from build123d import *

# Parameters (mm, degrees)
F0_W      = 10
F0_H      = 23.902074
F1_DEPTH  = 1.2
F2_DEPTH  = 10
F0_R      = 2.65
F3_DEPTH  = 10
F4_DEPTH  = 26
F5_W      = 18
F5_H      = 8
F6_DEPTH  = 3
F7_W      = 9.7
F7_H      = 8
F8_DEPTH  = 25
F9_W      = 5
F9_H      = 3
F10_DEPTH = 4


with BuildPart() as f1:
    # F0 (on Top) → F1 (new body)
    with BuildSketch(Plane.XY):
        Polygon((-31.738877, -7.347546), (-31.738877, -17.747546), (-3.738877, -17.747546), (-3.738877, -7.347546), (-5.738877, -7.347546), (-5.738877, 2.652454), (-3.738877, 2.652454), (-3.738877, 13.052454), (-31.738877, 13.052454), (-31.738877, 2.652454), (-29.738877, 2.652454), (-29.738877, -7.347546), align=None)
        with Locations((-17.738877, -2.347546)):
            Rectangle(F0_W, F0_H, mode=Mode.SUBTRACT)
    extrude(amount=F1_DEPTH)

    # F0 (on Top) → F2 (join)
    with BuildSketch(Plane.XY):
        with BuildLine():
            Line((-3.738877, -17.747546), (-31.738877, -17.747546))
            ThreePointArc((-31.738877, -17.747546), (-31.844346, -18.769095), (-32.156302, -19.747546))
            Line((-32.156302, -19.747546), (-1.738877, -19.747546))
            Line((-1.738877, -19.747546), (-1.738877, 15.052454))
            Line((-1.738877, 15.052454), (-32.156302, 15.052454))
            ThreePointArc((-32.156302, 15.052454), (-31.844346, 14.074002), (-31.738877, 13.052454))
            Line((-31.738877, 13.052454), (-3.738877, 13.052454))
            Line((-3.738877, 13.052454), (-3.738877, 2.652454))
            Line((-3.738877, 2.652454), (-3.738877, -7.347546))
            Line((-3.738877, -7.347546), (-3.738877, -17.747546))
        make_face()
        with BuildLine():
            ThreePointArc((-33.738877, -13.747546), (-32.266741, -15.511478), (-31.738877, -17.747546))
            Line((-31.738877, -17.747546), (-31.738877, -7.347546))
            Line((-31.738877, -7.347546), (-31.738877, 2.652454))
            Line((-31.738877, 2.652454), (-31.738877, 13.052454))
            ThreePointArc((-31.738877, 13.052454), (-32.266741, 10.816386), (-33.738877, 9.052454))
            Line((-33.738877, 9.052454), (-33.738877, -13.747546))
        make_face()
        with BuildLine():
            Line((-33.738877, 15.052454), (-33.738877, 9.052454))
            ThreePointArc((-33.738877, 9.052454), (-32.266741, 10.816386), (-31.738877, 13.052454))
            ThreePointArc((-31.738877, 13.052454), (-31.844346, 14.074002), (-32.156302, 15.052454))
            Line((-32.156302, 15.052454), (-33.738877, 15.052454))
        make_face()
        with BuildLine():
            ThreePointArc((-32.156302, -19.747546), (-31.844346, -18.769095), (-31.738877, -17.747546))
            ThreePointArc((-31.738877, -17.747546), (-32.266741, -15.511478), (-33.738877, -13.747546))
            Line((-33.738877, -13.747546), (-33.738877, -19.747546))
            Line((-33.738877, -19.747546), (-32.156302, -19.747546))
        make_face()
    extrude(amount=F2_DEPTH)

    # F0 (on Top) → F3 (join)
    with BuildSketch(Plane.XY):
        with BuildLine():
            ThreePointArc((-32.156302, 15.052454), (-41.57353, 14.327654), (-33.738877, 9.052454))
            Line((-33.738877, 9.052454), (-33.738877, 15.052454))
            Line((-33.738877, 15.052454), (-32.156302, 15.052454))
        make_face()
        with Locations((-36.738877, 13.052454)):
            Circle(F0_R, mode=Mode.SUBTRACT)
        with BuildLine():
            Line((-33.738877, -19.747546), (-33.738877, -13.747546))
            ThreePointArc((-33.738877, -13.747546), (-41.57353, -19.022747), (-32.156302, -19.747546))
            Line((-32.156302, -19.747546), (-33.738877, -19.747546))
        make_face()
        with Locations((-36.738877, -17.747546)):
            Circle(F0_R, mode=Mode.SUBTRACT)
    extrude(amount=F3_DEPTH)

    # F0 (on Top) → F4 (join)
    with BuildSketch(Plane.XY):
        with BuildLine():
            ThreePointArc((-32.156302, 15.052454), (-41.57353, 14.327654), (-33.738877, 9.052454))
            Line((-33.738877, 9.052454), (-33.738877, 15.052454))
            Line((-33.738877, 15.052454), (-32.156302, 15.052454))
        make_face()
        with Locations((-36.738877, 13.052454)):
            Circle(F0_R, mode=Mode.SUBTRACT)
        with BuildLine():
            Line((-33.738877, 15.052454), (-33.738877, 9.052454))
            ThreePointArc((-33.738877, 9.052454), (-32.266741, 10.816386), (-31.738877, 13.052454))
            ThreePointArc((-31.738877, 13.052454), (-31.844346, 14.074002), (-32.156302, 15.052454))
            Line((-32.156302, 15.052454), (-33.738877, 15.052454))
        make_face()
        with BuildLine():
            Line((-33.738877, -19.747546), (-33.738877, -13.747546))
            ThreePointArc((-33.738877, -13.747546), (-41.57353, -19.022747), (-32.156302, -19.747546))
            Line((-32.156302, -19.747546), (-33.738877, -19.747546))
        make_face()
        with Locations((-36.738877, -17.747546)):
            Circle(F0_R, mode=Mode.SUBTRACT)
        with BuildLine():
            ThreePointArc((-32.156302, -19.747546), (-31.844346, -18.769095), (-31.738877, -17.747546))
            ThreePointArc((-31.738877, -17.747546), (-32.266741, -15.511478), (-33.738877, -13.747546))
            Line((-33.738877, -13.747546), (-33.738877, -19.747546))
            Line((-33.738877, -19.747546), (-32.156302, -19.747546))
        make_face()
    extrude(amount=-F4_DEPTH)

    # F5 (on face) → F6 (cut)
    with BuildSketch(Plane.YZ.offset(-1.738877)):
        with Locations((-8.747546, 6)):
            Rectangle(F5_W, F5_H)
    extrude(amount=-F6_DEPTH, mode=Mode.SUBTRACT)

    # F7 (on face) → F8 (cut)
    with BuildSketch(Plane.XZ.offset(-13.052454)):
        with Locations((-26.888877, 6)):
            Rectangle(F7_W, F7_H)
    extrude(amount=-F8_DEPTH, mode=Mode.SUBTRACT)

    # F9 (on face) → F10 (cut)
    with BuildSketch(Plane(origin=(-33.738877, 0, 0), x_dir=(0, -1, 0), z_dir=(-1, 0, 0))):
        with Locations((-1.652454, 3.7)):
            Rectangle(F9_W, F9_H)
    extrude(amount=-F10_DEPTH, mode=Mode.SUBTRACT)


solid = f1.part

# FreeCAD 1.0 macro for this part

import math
import FreeCAD as App
import Part
import Sketcher

doc = App.newDocument("Part")
body = doc.addObject("PartDesign::Body", "Body")

sketch1 = body.newObject("Sketcher::SketchObject", "Sketch")
sketch1.AttachmentSupport = (doc.getObject("XY_Plane"), [""])
sketch1.MapMode = "FlatFace"
sketch1.addGeometry(Part.LineSegment(App.Vector(-31.738877, -7.347546, 0), App.Vector(-31.738877, -17.747546, 0)), False)
sketch1.addGeometry(Part.LineSegment(App.Vector(-31.738877, -17.747546, 0), App.Vector(-3.738877, -17.747546, 0)), False)
sketch1.addGeometry(Part.LineSegment(App.Vector(-3.738877, -17.747546, 0), App.Vector(-3.738877, -7.347546, 0)), False)
sketch1.addGeometry(Part.LineSegment(App.Vector(-3.738877, -7.347546, 0), App.Vector(-5.738877, -7.347546, 0)), False)
sketch1.addGeometry(Part.LineSegment(App.Vector(-5.738877, -7.347546, 0), App.Vector(-5.738877, 2.652454, 0)), False)
sketch1.addGeometry(Part.LineSegment(App.Vector(-5.738877, 2.652454, 0), App.Vector(-3.738877, 2.652454, 0)), False)
sketch1.addGeometry(Part.LineSegment(App.Vector(-3.738877, 2.652454, 0), App.Vector(-3.738877, 13.052454, 0)), False)
sketch1.addGeometry(Part.LineSegment(App.Vector(-3.738877, 13.052454, 0), App.Vector(-31.738877, 13.052454, 0)), False)
sketch1.addGeometry(Part.LineSegment(App.Vector(-31.738877, 13.052454, 0), App.Vector(-31.738877, 2.652454, 0)), False)
sketch1.addGeometry(Part.LineSegment(App.Vector(-31.738877, 2.652454, 0), App.Vector(-29.738877, 2.652454, 0)), False)
sketch1.addGeometry(Part.LineSegment(App.Vector(-29.738877, 2.652454, 0), App.Vector(-29.738877, -7.347546, 0)), False)
sketch1.addGeometry(Part.LineSegment(App.Vector(-29.738877, -7.347546, 0), App.Vector(-31.738877, -7.347546, 0)), False)
sketch1.addGeometry(Part.LineSegment(App.Vector(-12.738877, -14.298583, 0), App.Vector(-22.738877, -14.298583, 0)), False)
sketch1.addGeometry(Part.LineSegment(App.Vector(-22.738877, -14.298583, 0), App.Vector(-22.738877, 9.603491, 0)), False)
sketch1.addGeometry(Part.LineSegment(App.Vector(-22.738877, 9.603491, 0), App.Vector(-12.738877, 9.603491, 0)), False)
sketch1.addGeometry(Part.LineSegment(App.Vector(-12.738877, 9.603491, 0), App.Vector(-12.738877, -14.298583, 0)), False)
sketch1.addConstraint(Sketcher.Constraint("Coincident", 0, 2, 1, 1))
sketch1.addConstraint(Sketcher.Constraint("Coincident", 1, 2, 2, 1))
sketch1.addConstraint(Sketcher.Constraint("Coincident", 2, 2, 3, 1))
sketch1.addConstraint(Sketcher.Constraint("Coincident", 3, 2, 4, 1))
sketch1.addConstraint(Sketcher.Constraint("Coincident", 4, 2, 5, 1))
sketch1.addConstraint(Sketcher.Constraint("Coincident", 5, 2, 6, 1))
sketch1.addConstraint(Sketcher.Constraint("Coincident", 6, 2, 7, 1))
sketch1.addConstraint(Sketcher.Constraint("Coincident", 7, 2, 8, 1))
sketch1.addConstraint(Sketcher.Constraint("Coincident", 8, 2, 9, 1))
sketch1.addConstraint(Sketcher.Constraint("Coincident", 9, 2, 10, 1))
sketch1.addConstraint(Sketcher.Constraint("Coincident", 10, 2, 11, 1))
sketch1.addConstraint(Sketcher.Constraint("Coincident", 11, 2, 0, 1))
sketch1.addConstraint(Sketcher.Constraint("Coincident", 12, 2, 13, 1))
sketch1.addConstraint(Sketcher.Constraint("Coincident", 13, 2, 14, 1))
sketch1.addConstraint(Sketcher.Constraint("Coincident", 14, 2, 15, 1))
sketch1.addConstraint(Sketcher.Constraint("Coincident", 15, 2, 12, 1))
sketch1.addConstraint(Sketcher.Constraint("Vertical", 0))
sketch1.addConstraint(Sketcher.Constraint("Horizontal", 1))
sketch1.addConstraint(Sketcher.Constraint("Vertical", 2))
sketch1.addConstraint(Sketcher.Constraint("Horizontal", 3))
sketch1.addConstraint(Sketcher.Constraint("Vertical", 4))
sketch1.addConstraint(Sketcher.Constraint("Horizontal", 5))
sketch1.addConstraint(Sketcher.Constraint("Vertical", 6))
sketch1.addConstraint(Sketcher.Constraint("Horizontal", 7))
sketch1.addConstraint(Sketcher.Constraint("Vertical", 8))
sketch1.addConstraint(Sketcher.Constraint("Horizontal", 9))
sketch1.addConstraint(Sketcher.Constraint("Vertical", 10))
sketch1.addConstraint(Sketcher.Constraint("Horizontal", 11))
sketch1.addConstraint(Sketcher.Constraint("Horizontal", 12))
sketch1.addConstraint(Sketcher.Constraint("Vertical", 13))
sketch1.addConstraint(Sketcher.Constraint("Horizontal", 14))
sketch1.addConstraint(Sketcher.Constraint("Vertical", 15))
sketch1.addConstraint(Sketcher.Constraint("Horizontal", 5, 2, 8, 2))
sketch1.addConstraint(Sketcher.Constraint("Horizontal", 3, 2, 10, 2))
sketch1.addConstraint(Sketcher.Constraint("Vertical", 2, 2, 5, 2))
sketch1.addConstraint(Sketcher.Constraint("Vertical", 0, 2, 7, 2))
sketch1.addConstraint(Sketcher.Constraint("Equal", 5, 9))
sketch1.addConstraint(Sketcher.Constraint("Equal", 14, 4))
sketch1.addConstraint(Sketcher.Constraint("Equal", 2, 6))
sketch1.addConstraint(Sketcher.Constraint("DistanceX", 1, 1, 1, 2, 28.0))
sketch1.addConstraint(Sketcher.Constraint("DistanceX", 3, 2, 3, 1, 2.0))
sketch1.addConstraint(Sketcher.Constraint("DistanceX", 12, 2, 12, 1, 10.0))
sketch1.addConstraint(Sketcher.Constraint("DistanceY", 0, 2, 0, 1, 10.4))
sketch1.addConstraint(Sketcher.Constraint("DistanceX", 0, 2, 12, 2, 9.0))
sketch1.addConstraint(Sketcher.Constraint("DistanceY", 13, 1, 13, 2, 23.902074))
sketch1.addConstraint(Sketcher.Constraint("DistanceY", -1, 1, 13, 2, 9.603491))
sketch1.addConstraint(Sketcher.Constraint("DistanceX", 0, 2, -1, 1, 31.738877))
sketch1.addConstraint(Sketcher.Constraint("DistanceY", 0, 2, -1, 1, 17.747546))
pad1 = body.newObject("PartDesign::Pad", "Pad")
pad1.Profile = sketch1
pad1.Length = 1.2

sketch2 = body.newObject("Sketcher::SketchObject", "Sketch001")
sketch2.AttachmentSupport = (doc.getObject("XY_Plane"), [""])
sketch2.MapMode = "FlatFace"
sketch2.addGeometry(Part.LineSegment(App.Vector(-33.738877, 15.052454, 0), App.Vector(-33.738877, -19.747546, 0)), False)
sketch2.addGeometry(Part.LineSegment(App.Vector(-33.738877, -19.747546, 0), App.Vector(-1.738877, -19.747546, 0)), False)
sketch2.addGeometry(Part.LineSegment(App.Vector(-1.738877, -19.747546, 0), App.Vector(-1.738877, 15.052454, 0)), False)
sketch2.addGeometry(Part.LineSegment(App.Vector(-1.738877, 15.052454, 0), App.Vector(-33.738877, 15.052454, 0)), False)
sketch2.addGeometry(Part.LineSegment(App.Vector(-3.738877, -17.747546, 0), App.Vector(-31.738877, -17.747546, 0)), False)
sketch2.addGeometry(Part.LineSegment(App.Vector(-31.738877, -17.747546, 0), App.Vector(-31.738877, 13.052454, 0)), False)
sketch2.addGeometry(Part.LineSegment(App.Vector(-31.738877, 13.052454, 0), App.Vector(-3.738877, 13.052454, 0)), False)
sketch2.addGeometry(Part.LineSegment(App.Vector(-3.738877, 13.052454, 0), App.Vector(-3.738877, -17.747546, 0)), False)
sketch2.addConstraint(Sketcher.Constraint("Coincident", 0, 2, 1, 1))
sketch2.addConstraint(Sketcher.Constraint("Coincident", 1, 2, 2, 1))
sketch2.addConstraint(Sketcher.Constraint("Coincident", 2, 2, 3, 1))
sketch2.addConstraint(Sketcher.Constraint("Coincident", 3, 2, 0, 1))
sketch2.addConstraint(Sketcher.Constraint("Coincident", 4, 2, 5, 1))
sketch2.addConstraint(Sketcher.Constraint("Coincident", 5, 2, 6, 1))
sketch2.addConstraint(Sketcher.Constraint("Coincident", 6, 2, 7, 1))
sketch2.addConstraint(Sketcher.Constraint("Coincident", 7, 2, 4, 1))
sketch2.addConstraint(Sketcher.Constraint("Vertical", 0))
sketch2.addConstraint(Sketcher.Constraint("Horizontal", 1))
sketch2.addConstraint(Sketcher.Constraint("Vertical", 2))
sketch2.addConstraint(Sketcher.Constraint("Horizontal", 3))
sketch2.addConstraint(Sketcher.Constraint("Horizontal", 4))
sketch2.addConstraint(Sketcher.Constraint("Vertical", 5))
sketch2.addConstraint(Sketcher.Constraint("Horizontal", 6))
sketch2.addConstraint(Sketcher.Constraint("Vertical", 7))
sketch2.addConstraint(Sketcher.Constraint("DistanceX", 1, 1, 1, 2, 32.0))
sketch2.addConstraint(Sketcher.Constraint("DistanceX", 4, 2, 4, 1, 28.0))
sketch2.addConstraint(Sketcher.Constraint("DistanceY", 0, 2, 0, 1, 34.8))
sketch2.addConstraint(Sketcher.Constraint("DistanceY", 5, 1, 5, 2, 30.8))
sketch2.addConstraint(Sketcher.Constraint("DistanceX", 0, 2, 4, 2, 2.0))
sketch2.addConstraint(Sketcher.Constraint("DistanceY", 0, 2, 4, 2, 2.0))
sketch2.addConstraint(Sketcher.Constraint("DistanceX", 0, 2, -1, 1, 33.738877))
sketch2.addConstraint(Sketcher.Constraint("DistanceY", 0, 2, -1, 1, 19.747546))
pad2 = body.newObject("PartDesign::Pad", "Pad001")
pad2.Profile = sketch2
pad2.Length = 10

sketch3 = body.newObject("Sketcher::SketchObject", "Sketch002")
sketch3.AttachmentSupport = (doc.getObject("XY_Plane"), [""])
sketch3.MapMode = "FlatFace"
sketch3.addGeometry(Part.ArcOfCircle(Part.Circle(App.Vector(-36.738878, 13.052454, 0), App.Vector(0, 0, 1), 5), math.radians(23.578183), math.radians(306.869905)), False)
sketch3.addGeometry(Part.LineSegment(App.Vector(-33.738877, 9.052454, 0), App.Vector(-33.738877, 15.052454, 0)), False)
sketch3.addGeometry(Part.LineSegment(App.Vector(-33.738877, 15.052454, 0), App.Vector(-32.156302, 15.052454, 0)), False)
sketch3.addGeometry(Part.Circle(App.Vector(-36.738877, 13.052454, 0), App.Vector(0, 0, 1), 2.65), False)
sketch3.addGeometry(Part.LineSegment(App.Vector(-33.738877, -19.747546, 0), App.Vector(-33.738877, -13.747546, 0)), False)
sketch3.addGeometry(Part.ArcOfCircle(Part.Circle(App.Vector(-36.738878, -17.747546, 0), App.Vector(0, 0, 1), 5), math.radians(53.130094), math.radians(336.421818)), False)
sketch3.addGeometry(Part.LineSegment(App.Vector(-32.156302, -19.747546, 0), App.Vector(-33.738877, -19.747546, 0)), False)
sketch3.addGeometry(Part.Circle(App.Vector(-36.738877, -17.747546, 0), App.Vector(0, 0, 1), 2.65), False)
sketch3.addConstraint(Sketcher.Constraint("Coincident", 0, 2, 1, 1))
sketch3.addConstraint(Sketcher.Constraint("Coincident", 1, 2, 2, 1))
sketch3.addConstraint(Sketcher.Constraint("Coincident", 2, 2, 0, 1))
sketch3.addConstraint(Sketcher.Constraint("Coincident", 4, 2, 5, 1))
sketch3.addConstraint(Sketcher.Constraint("Coincident", 5, 2, 6, 1))
sketch3.addConstraint(Sketcher.Constraint("Coincident", 6, 2, 4, 1))
sketch3.addConstraint(Sketcher.Constraint("Vertical", 1))
sketch3.addConstraint(Sketcher.Constraint("Horizontal", 2))
sketch3.addConstraint(Sketcher.Constraint("Vertical", 4))
sketch3.addConstraint(Sketcher.Constraint("Horizontal", 6))
sketch3.addConstraint(Sketcher.Constraint("Coincident", 3, 3, 0, 3))
sketch3.addConstraint(Sketcher.Constraint("Coincident", 7, 3, 5, 3))
sketch3.addConstraint(Sketcher.Constraint("Equal", 0, 5))
sketch3.addConstraint(Sketcher.Constraint("Equal", 3, 7))
sketch3.addConstraint(Sketcher.Constraint("Vertical", 3, 3, 5, 3))
sketch3.addConstraint(Sketcher.Constraint("Vertical", 1, 2, 4, 2))
sketch3.addConstraint(Sketcher.Constraint("Vertical", 2, 2, 5, 2))
sketch3.addConstraint(Sketcher.Constraint("Radius", 0, 5.0))
sketch3.addConstraint(Sketcher.Constraint("Diameter", 3, 5.3))
sketch3.addConstraint(Sketcher.Constraint("DistanceY", 1, 1, 1, 2, 6.0))
sketch3.addConstraint(Sketcher.Constraint("DistanceX", 3, 3, 0, 2, 3.0))
sketch3.addConstraint(Sketcher.Constraint("DistanceY", 5, 3, 0, 3, 30.799999))
sketch3.addConstraint(Sketcher.Constraint("DistanceX", 2, 2, -1, 1, 32.156302))
sketch3.addConstraint(Sketcher.Constraint("DistanceY", -1, 1, 0, 3, 13.052454))
pad3 = body.newObject("PartDesign::Pad", "Pad002")
pad3.Profile = sketch3
pad3.Length = 10

sketch4 = body.newObject("Sketcher::SketchObject", "Sketch003")
sketch4.AttachmentSupport = (doc.getObject("XY_Plane"), [""])
sketch4.MapMode = "FlatFace"
sketch4.addGeometry(Part.ArcOfCircle(Part.Circle(App.Vector(-36.738878, 13.052454, 0), App.Vector(0, 0, 1), 5), math.radians(23.578183), math.radians(306.869905)), False)
sketch4.addGeometry(Part.ArcOfCircle(Part.Circle(App.Vector(-36.738877, 13.052454, 0), App.Vector(0, 0, 1), 5), math.radians(-53.130105), math.radians(0.000002)), False)
sketch4.addGeometry(Part.ArcOfCircle(Part.Circle(App.Vector(-36.73889, 13.05245, 0), App.Vector(0, 0, 1), 5.000013), math.radians(0.000048), math.radians(23.578168)), False)
sketch4.addGeometry(Part.Circle(App.Vector(-36.738877, 13.052454, 0), App.Vector(0, 0, 1), 2.65), False)
sketch4.addGeometry(Part.ArcOfCircle(Part.Circle(App.Vector(-36.738878, -17.747546, 0), App.Vector(0, 0, 1), 5), math.radians(53.130094), math.radians(336.421818)), False)
sketch4.addGeometry(Part.ArcOfCircle(Part.Circle(App.Vector(-36.73888, -17.747544, 0), App.Vector(0, 0, 1), 5.000003), math.radians(-23.578191), math.radians(-0.000026)), False)
sketch4.addGeometry(Part.ArcOfCircle(Part.Circle(App.Vector(-36.738877, -17.747546, 0), App.Vector(0, 0, 1), 5), math.radians(-0.000002), math.radians(53.130105)), False)
sketch4.addGeometry(Part.Circle(App.Vector(-36.738877, -17.747546, 0), App.Vector(0, 0, 1), 2.65), False)
sketch4.addConstraint(Sketcher.Constraint("Tangent", 0, 2, 1, 1))
sketch4.addConstraint(Sketcher.Constraint("Tangent", 1, 2, 2, 1))
sketch4.addConstraint(Sketcher.Constraint("Tangent", 2, 2, 0, 1))
sketch4.addConstraint(Sketcher.Constraint("Tangent", 4, 2, 5, 1))
sketch4.addConstraint(Sketcher.Constraint("Tangent", 5, 2, 6, 1))
sketch4.addConstraint(Sketcher.Constraint("Tangent", 6, 2, 4, 1))
sketch4.addConstraint(Sketcher.Constraint("Coincident", 3, 3, 0, 3))
sketch4.addConstraint(Sketcher.Constraint("Coincident", 7, 3, 4, 3))
sketch4.addConstraint(Sketcher.Constraint("Equal", 1, 4))
sketch4.addConstraint(Sketcher.Constraint("Equal", 3, 7))
sketch4.addConstraint(Sketcher.Constraint("Horizontal", 3, 3, 1, 2))
sketch4.addConstraint(Sketcher.Constraint("Horizontal", 7, 3, 5, 2))
sketch4.addConstraint(Sketcher.Constraint("Vertical", 3, 3, 4, 3))
sketch4.addConstraint(Sketcher.Constraint("Vertical", 2, 2, 4, 2))
sketch4.addConstraint(Sketcher.Constraint("Vertical", 0, 2, 6, 2))
sketch4.addConstraint(Sketcher.Constraint("Radius", 0, 5.0))
sketch4.addConstraint(Sketcher.Constraint("Diameter", 3, 5.3))
sketch4.addConstraint(Sketcher.Constraint("DistanceX", 1, 3, 0, 2, 3.0))
sketch4.addConstraint(Sketcher.Constraint("DistanceY", 1, 2, 2, 2, 2.0))
sketch4.addConstraint(Sketcher.Constraint("DistanceY", 4, 3, 0, 3, 30.799999))
sketch4.addConstraint(Sketcher.Constraint("DistanceX", 2, 2, -1, 1, 32.156302))
sketch4.addConstraint(Sketcher.Constraint("DistanceY", -1, 1, 2, 3, 13.05245))
pad4 = body.newObject("PartDesign::Pad", "Pad003")
pad4.Profile = sketch4
pad4.Length = 26
pad4.Reversed = True

sketch5 = body.newObject("Sketcher::SketchObject", "Sketch004")
sketch5.AttachmentSupport = (doc.getObject("YZ_Plane"), [""])
sketch5.MapMode = "FlatFace"
sketch5.AttachmentOffset = App.Placement(App.Vector(0, 0, -1.738877), App.Rotation())
sketch5.addGeometry(Part.LineSegment(App.Vector(-17.747546, 10, 0), App.Vector(-17.747546, 2, 0)), False)
sketch5.addGeometry(Part.LineSegment(App.Vector(-17.747546, 2, 0), App.Vector(0.252454, 2, 0)), False)
sketch5.addGeometry(Part.LineSegment(App.Vector(0.252454, 2, 0), App.Vector(0.252454, 10, 0)), False)
sketch5.addGeometry(Part.LineSegment(App.Vector(0.252454, 10, 0), App.Vector(-17.747546, 10, 0)), False)
sketch5.addConstraint(Sketcher.Constraint("Coincident", 0, 2, 1, 1))
sketch5.addConstraint(Sketcher.Constraint("Coincident", 1, 2, 2, 1))
sketch5.addConstraint(Sketcher.Constraint("Coincident", 2, 2, 3, 1))
sketch5.addConstraint(Sketcher.Constraint("Coincident", 3, 2, 0, 1))
sketch5.addConstraint(Sketcher.Constraint("Vertical", 0))
sketch5.addConstraint(Sketcher.Constraint("Horizontal", 1))
sketch5.addConstraint(Sketcher.Constraint("Vertical", 2))
sketch5.addConstraint(Sketcher.Constraint("Horizontal", 3))
sketch5.addConstraint(Sketcher.Constraint("DistanceX", 1, 1, 1, 2, 18.0))
sketch5.addConstraint(Sketcher.Constraint("DistanceY", 0, 2, 0, 1, 8.0))
sketch5.addConstraint(Sketcher.Constraint("DistanceY", -1, 1, 0, 2, 2.0))
sketch5.addConstraint(Sketcher.Constraint("DistanceX", 0, 2, -1, 1, 17.747546))
pocket1 = body.newObject("PartDesign::Pocket", "Pocket")
pocket1.Profile = sketch5
pocket1.Length = 3

sketch6 = body.newObject("Sketcher::SketchObject", "Sketch005")
sketch6.AttachmentSupport = (doc.getObject("XZ_Plane"), [""])
sketch6.MapMode = "FlatFace"
sketch6.AttachmentOffset = App.Placement(App.Vector(0, 0, -13.052454), App.Rotation())
sketch6.addGeometry(Part.LineSegment(App.Vector(-31.738877, 10, 0), App.Vector(-31.738877, 2, 0)), False)
sketch6.addGeometry(Part.LineSegment(App.Vector(-31.738877, 2, 0), App.Vector(-22.038877, 2, 0)), False)
sketch6.addGeometry(Part.LineSegment(App.Vector(-22.038877, 2, 0), App.Vector(-22.038877, 10, 0)), False)
sketch6.addGeometry(Part.LineSegment(App.Vector(-22.038877, 10, 0), App.Vector(-31.738877, 10, 0)), False)
sketch6.addConstraint(Sketcher.Constraint("Coincident", 0, 2, 1, 1))
sketch6.addConstraint(Sketcher.Constraint("Coincident", 1, 2, 2, 1))
sketch6.addConstraint(Sketcher.Constraint("Coincident", 2, 2, 3, 1))
sketch6.addConstraint(Sketcher.Constraint("Coincident", 3, 2, 0, 1))
sketch6.addConstraint(Sketcher.Constraint("Vertical", 0))
sketch6.addConstraint(Sketcher.Constraint("Horizontal", 1))
sketch6.addConstraint(Sketcher.Constraint("Vertical", 2))
sketch6.addConstraint(Sketcher.Constraint("Horizontal", 3))
sketch6.addConstraint(Sketcher.Constraint("DistanceY", 0, 2, 0, 1, 8.0))
sketch6.addConstraint(Sketcher.Constraint("DistanceX", 1, 1, 1, 2, 9.7))
sketch6.addConstraint(Sketcher.Constraint("DistanceY", -1, 1, 0, 2, 2.0))
sketch6.addConstraint(Sketcher.Constraint("DistanceX", 0, 2, -1, 1, 31.738877))
pocket2 = body.newObject("PartDesign::Pocket", "Pocket001")
pocket2.Profile = sketch6
pocket2.Length = 25

sketch7 = body.newObject("Sketcher::SketchObject", "Sketch006")
sketch7.AttachmentSupport = (doc.getObject("YZ_Plane"), [""])
sketch7.MapMode = "FlatFace"
sketch7.AttachmentOffset = App.Placement(App.Vector(0, 0, -33.738877), App.Rotation())
sketch7.addGeometry(Part.LineSegment(App.Vector(4.152454, 5.2, 0), App.Vector(4.152454, 2.2, 0)), False)
sketch7.addGeometry(Part.LineSegment(App.Vector(4.152454, 2.2, 0), App.Vector(-0.847546, 2.2, 0)), False)
sketch7.addGeometry(Part.LineSegment(App.Vector(-0.847546, 2.2, 0), App.Vector(-0.847546, 5.2, 0)), False)
sketch7.addGeometry(Part.LineSegment(App.Vector(-0.847546, 5.2, 0), App.Vector(4.152454, 5.2, 0)), False)
sketch7.addConstraint(Sketcher.Constraint("Coincident", 0, 2, 1, 1))
sketch7.addConstraint(Sketcher.Constraint("Coincident", 1, 2, 2, 1))
sketch7.addConstraint(Sketcher.Constraint("Coincident", 2, 2, 3, 1))
sketch7.addConstraint(Sketcher.Constraint("Coincident", 3, 2, 0, 1))
sketch7.addConstraint(Sketcher.Constraint("Vertical", 0))
sketch7.addConstraint(Sketcher.Constraint("Horizontal", 1))
sketch7.addConstraint(Sketcher.Constraint("Vertical", 2))
sketch7.addConstraint(Sketcher.Constraint("Horizontal", 3))
sketch7.addConstraint(Sketcher.Constraint("DistanceX", 1, 2, 1, 1, 5.0))
sketch7.addConstraint(Sketcher.Constraint("DistanceY", 0, 2, 0, 1, 3.0))
sketch7.addConstraint(Sketcher.Constraint("DistanceY", -1, 1, 0, 2, 2.2))
sketch7.addConstraint(Sketcher.Constraint("DistanceX", -1, 1, 0, 2, 4.152454))
pocket3 = body.newObject("PartDesign::Pocket", "Pocket002")
pocket3.Profile = sketch7
pocket3.Length = 4
pocket3.Reversed = True

doc.recompute()
